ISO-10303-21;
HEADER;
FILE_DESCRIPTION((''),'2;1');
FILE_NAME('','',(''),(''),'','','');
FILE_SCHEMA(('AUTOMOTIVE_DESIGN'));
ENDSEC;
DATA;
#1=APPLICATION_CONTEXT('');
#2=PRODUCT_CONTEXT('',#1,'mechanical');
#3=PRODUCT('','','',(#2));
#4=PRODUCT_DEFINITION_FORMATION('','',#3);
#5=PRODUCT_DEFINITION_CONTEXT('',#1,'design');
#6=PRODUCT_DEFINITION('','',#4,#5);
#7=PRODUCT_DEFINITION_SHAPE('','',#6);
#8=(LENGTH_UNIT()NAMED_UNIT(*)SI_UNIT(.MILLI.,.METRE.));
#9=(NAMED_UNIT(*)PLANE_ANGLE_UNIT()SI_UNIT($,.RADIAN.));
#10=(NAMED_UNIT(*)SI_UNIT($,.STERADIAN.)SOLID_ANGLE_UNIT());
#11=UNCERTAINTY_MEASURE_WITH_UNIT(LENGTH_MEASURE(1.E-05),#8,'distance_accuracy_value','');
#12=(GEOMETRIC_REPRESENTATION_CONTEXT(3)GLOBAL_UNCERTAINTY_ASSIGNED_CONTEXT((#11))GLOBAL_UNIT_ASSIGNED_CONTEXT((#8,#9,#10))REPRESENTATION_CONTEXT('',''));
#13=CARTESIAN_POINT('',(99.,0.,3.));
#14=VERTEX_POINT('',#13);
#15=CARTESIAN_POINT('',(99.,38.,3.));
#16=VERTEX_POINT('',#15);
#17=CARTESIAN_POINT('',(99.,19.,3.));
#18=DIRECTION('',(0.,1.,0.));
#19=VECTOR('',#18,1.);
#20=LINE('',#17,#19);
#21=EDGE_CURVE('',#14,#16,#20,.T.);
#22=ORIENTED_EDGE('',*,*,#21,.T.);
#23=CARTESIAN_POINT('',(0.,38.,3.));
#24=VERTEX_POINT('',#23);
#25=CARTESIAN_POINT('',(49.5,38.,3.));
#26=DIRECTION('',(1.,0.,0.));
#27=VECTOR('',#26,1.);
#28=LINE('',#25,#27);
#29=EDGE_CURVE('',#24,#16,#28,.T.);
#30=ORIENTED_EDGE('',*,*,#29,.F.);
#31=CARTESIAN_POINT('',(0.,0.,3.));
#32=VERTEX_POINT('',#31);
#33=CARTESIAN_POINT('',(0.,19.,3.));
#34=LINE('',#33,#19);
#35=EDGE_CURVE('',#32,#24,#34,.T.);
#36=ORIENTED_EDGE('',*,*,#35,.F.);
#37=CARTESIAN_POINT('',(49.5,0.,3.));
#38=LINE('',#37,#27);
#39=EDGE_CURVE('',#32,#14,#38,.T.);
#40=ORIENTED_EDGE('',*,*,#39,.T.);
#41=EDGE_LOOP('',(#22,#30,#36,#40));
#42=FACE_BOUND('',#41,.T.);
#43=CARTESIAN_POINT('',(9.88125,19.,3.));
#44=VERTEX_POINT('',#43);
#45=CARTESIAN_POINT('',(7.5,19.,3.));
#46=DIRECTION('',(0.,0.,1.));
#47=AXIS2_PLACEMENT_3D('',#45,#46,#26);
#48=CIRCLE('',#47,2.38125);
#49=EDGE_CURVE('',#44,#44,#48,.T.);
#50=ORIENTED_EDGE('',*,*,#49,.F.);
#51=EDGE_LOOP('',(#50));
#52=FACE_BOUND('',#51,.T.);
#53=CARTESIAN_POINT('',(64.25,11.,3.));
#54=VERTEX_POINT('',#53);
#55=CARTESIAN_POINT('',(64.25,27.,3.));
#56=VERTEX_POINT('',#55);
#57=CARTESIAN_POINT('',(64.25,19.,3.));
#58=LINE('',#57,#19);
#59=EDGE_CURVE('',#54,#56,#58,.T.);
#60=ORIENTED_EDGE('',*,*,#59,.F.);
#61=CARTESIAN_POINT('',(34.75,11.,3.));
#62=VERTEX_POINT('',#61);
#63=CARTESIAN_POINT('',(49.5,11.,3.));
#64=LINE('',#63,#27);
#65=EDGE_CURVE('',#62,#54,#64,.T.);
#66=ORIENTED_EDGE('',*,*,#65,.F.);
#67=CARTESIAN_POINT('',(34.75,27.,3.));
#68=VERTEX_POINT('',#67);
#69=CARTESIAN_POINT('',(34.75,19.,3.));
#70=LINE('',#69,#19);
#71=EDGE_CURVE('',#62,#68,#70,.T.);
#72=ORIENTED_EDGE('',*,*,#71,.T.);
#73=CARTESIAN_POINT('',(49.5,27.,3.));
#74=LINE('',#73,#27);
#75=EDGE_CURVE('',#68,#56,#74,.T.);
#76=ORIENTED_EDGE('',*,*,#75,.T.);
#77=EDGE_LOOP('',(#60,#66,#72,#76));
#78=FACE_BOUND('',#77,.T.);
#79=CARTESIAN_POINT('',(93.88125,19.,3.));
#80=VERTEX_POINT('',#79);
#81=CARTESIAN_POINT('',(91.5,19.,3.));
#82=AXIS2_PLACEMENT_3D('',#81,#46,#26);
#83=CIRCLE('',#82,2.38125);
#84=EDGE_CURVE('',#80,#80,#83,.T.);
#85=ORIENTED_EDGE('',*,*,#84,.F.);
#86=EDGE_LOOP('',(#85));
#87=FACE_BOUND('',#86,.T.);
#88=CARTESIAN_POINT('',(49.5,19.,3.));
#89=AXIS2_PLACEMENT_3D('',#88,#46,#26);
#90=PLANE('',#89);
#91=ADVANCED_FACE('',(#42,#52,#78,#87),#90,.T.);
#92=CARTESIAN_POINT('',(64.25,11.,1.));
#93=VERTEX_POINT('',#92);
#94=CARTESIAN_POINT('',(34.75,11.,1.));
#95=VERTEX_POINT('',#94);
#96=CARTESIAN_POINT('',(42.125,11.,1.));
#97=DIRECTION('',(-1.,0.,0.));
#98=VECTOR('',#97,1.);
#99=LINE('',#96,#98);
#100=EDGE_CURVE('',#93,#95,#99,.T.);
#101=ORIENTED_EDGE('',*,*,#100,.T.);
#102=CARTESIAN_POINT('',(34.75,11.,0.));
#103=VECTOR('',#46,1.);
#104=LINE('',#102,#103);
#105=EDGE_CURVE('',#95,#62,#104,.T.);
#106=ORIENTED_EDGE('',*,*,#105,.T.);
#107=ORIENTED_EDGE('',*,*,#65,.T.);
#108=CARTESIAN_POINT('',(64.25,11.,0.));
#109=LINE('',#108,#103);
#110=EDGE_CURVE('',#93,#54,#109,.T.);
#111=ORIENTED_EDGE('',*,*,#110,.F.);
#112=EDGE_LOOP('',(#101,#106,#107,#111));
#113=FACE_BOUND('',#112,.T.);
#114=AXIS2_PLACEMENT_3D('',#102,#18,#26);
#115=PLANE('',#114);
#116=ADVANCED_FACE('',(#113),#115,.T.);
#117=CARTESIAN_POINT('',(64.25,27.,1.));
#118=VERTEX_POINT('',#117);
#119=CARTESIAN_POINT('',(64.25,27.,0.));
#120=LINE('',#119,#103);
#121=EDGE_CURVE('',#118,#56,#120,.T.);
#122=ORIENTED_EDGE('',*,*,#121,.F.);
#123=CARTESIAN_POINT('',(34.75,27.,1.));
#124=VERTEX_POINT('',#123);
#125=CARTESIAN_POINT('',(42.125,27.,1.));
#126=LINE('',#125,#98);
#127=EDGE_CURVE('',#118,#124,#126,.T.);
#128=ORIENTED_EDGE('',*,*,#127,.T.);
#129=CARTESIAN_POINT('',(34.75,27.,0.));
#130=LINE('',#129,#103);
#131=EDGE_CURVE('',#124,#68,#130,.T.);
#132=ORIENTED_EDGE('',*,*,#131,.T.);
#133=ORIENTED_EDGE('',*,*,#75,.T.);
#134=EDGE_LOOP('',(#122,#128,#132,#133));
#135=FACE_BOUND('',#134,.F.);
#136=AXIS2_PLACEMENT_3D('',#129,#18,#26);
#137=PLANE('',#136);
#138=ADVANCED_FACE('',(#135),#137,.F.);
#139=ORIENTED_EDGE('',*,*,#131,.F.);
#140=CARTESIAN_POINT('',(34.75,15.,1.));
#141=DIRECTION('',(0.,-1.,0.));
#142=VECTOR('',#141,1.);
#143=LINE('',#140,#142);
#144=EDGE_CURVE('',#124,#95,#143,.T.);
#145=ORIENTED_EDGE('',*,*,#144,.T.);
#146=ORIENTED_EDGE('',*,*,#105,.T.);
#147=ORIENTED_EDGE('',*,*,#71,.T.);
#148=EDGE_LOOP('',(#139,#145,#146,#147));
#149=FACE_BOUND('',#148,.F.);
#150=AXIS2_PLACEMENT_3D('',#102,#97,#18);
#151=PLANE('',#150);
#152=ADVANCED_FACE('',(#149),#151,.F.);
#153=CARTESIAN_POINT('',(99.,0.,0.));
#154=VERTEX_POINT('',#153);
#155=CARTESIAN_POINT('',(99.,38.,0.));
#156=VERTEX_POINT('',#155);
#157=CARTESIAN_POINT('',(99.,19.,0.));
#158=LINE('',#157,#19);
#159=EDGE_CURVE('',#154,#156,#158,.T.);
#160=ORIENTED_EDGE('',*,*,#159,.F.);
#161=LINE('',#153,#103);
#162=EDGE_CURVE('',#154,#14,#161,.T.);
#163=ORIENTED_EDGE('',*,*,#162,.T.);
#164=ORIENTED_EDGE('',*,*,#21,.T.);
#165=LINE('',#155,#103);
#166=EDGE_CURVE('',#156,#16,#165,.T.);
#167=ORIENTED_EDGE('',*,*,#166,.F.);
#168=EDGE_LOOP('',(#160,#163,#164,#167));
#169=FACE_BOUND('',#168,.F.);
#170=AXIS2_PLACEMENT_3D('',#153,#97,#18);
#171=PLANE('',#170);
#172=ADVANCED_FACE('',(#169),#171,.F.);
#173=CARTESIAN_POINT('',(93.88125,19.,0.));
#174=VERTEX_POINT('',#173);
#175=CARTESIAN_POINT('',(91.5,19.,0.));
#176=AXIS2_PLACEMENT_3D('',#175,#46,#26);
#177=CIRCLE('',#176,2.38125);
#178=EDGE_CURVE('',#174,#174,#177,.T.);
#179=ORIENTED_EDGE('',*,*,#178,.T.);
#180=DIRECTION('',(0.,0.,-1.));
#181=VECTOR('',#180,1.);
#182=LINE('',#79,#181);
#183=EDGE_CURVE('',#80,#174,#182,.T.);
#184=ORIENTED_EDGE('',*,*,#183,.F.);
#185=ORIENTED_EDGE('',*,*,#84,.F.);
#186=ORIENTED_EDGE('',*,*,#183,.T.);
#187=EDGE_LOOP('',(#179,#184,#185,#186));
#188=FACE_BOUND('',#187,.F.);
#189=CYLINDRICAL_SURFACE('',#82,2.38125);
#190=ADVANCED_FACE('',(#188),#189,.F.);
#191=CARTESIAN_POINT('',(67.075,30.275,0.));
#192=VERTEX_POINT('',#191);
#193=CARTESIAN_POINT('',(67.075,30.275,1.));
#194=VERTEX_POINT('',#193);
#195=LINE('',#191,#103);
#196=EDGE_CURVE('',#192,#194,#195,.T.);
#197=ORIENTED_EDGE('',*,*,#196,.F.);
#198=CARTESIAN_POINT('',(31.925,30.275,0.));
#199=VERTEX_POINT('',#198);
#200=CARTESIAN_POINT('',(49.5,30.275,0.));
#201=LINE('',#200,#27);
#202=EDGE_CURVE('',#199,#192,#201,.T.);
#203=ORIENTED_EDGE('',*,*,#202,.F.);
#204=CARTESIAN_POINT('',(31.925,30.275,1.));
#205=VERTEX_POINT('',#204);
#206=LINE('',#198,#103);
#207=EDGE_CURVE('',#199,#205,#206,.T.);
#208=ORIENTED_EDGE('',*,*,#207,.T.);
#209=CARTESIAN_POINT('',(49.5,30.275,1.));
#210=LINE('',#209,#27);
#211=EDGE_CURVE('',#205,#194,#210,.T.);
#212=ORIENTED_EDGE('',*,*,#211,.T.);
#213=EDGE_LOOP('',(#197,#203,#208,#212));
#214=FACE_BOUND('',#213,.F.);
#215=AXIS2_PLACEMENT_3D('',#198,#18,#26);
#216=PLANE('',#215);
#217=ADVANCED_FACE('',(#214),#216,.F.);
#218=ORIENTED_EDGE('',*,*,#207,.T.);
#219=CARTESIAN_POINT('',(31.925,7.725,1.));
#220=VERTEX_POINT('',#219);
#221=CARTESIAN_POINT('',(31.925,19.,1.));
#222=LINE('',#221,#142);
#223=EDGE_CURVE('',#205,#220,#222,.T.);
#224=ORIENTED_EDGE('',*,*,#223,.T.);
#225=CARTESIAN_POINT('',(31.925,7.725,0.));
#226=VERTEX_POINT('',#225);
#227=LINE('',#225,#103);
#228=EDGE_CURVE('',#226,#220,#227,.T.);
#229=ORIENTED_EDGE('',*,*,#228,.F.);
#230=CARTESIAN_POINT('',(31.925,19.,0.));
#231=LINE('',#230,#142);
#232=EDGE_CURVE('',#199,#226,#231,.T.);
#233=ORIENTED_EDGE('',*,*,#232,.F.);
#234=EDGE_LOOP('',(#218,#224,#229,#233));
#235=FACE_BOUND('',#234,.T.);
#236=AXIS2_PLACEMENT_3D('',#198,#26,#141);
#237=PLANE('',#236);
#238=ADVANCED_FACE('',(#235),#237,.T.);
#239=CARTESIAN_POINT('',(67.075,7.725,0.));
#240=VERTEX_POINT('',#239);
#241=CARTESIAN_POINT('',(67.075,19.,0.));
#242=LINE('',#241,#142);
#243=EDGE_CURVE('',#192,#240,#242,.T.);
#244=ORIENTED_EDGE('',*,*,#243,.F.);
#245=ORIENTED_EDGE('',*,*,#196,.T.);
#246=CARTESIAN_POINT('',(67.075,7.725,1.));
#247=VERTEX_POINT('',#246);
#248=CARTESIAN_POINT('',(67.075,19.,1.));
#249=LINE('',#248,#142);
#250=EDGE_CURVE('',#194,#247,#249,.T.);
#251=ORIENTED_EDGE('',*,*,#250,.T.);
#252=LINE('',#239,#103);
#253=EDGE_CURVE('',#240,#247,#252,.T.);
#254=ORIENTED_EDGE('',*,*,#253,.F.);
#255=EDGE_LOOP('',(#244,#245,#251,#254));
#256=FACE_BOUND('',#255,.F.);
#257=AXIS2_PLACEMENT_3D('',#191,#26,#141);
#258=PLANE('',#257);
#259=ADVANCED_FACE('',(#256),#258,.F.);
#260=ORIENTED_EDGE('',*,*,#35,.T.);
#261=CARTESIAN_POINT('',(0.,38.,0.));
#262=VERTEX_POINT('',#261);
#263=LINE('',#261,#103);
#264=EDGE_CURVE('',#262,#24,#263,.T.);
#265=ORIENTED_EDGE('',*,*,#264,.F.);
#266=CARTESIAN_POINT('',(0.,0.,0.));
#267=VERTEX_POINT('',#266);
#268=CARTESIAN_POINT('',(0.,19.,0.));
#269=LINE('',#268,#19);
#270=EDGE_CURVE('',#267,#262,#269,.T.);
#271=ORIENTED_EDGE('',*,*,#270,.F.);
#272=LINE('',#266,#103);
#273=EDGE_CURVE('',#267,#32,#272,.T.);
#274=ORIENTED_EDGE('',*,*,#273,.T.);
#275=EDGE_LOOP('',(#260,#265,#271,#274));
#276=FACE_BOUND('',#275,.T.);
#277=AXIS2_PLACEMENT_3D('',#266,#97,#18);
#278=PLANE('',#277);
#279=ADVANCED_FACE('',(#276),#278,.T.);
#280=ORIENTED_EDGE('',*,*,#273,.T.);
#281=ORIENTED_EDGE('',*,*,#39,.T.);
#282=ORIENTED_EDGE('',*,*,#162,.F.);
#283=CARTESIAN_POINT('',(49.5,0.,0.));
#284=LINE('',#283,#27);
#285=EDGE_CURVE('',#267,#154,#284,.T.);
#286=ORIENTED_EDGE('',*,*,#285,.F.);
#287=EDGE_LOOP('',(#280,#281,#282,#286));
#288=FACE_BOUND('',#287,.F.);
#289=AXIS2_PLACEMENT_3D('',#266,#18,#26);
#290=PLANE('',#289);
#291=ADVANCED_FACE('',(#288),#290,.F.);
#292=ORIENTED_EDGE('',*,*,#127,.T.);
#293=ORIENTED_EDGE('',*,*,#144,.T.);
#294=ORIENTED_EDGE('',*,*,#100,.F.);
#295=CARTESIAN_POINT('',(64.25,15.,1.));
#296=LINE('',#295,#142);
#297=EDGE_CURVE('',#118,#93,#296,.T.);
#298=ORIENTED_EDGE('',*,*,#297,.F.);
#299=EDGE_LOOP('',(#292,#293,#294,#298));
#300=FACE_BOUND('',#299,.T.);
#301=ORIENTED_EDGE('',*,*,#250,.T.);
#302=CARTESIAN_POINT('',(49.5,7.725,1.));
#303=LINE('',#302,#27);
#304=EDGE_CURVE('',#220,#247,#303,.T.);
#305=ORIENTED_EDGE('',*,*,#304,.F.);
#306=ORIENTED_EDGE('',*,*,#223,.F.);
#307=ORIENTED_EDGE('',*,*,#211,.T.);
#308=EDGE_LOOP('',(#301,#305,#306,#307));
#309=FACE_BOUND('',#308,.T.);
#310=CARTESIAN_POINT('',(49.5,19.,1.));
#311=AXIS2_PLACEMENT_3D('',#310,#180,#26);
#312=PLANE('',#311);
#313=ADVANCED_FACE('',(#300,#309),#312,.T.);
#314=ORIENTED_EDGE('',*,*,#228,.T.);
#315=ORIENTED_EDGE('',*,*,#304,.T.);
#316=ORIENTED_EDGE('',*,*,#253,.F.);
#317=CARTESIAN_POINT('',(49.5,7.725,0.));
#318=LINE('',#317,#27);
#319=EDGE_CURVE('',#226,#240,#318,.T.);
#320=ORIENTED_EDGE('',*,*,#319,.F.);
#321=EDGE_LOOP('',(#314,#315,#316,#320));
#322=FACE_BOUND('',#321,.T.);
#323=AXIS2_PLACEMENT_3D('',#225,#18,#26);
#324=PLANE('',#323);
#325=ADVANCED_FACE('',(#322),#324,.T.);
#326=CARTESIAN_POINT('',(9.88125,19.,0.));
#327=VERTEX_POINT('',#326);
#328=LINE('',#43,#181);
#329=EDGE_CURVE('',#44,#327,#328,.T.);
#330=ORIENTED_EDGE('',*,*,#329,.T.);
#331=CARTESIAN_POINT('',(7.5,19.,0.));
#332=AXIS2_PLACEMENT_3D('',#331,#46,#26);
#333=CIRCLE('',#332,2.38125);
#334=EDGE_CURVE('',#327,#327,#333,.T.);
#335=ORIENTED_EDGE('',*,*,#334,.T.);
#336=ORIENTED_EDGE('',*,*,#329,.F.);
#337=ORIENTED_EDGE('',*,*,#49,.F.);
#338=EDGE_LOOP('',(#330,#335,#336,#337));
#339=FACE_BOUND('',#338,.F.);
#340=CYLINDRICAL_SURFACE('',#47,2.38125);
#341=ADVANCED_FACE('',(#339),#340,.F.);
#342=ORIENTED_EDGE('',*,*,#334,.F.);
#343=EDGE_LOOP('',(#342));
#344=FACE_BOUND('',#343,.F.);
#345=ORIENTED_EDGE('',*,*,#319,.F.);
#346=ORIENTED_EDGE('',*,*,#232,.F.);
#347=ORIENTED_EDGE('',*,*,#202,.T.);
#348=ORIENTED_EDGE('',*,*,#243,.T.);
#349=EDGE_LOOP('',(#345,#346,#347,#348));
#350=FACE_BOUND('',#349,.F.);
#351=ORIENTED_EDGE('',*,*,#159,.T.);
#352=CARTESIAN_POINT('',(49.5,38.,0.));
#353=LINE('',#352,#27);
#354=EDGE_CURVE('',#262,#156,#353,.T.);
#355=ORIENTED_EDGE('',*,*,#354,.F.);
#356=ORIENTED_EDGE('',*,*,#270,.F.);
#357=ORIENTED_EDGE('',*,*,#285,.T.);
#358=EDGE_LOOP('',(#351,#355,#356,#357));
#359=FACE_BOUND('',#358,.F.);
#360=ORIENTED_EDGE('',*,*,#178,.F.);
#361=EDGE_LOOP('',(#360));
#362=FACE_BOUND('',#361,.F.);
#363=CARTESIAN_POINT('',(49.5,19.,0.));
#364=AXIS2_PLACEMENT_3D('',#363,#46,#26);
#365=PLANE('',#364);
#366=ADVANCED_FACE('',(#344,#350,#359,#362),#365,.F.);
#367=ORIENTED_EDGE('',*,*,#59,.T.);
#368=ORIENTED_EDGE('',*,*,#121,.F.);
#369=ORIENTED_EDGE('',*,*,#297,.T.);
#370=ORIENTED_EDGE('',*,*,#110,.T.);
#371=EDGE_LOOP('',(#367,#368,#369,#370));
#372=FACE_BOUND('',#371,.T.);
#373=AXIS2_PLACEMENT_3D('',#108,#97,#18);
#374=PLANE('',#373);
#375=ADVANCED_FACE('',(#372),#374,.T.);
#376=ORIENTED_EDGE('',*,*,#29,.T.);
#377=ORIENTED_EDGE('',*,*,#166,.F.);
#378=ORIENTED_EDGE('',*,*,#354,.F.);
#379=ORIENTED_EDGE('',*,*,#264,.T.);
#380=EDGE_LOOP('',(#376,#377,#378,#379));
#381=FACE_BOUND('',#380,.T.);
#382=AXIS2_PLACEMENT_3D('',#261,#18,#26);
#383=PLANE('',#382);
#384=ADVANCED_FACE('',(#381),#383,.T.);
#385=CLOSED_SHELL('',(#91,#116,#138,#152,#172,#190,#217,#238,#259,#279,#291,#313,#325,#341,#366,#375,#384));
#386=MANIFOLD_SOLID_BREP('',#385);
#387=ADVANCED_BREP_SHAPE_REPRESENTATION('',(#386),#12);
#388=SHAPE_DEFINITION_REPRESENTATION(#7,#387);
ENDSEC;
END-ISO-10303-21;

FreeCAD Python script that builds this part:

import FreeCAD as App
import Part
import Sketcher

V = App.Vector


def add_polygon(sketch, points):
    """Adds a closed chain of lines whose ends are joined by coincident constraints."""
    first, n = sketch.GeometryCount, len(points)
    for a, b in zip(points, points[1:] + points[:1]):
        sketch.addGeometry(Part.LineSegment(App.Vector(*a, 0), App.Vector(*b, 0)), False)
    for i in range(n):
        sketch.addConstraint(Sketcher.Constraint("Coincident", first + i, 2, first + (i + 1) % n, 1))

doc = App.newDocument("Part")
body = doc.addObject("PartDesign::Body", "Body")

# Sketch on XY plane
sketch1 = body.newObject("Sketcher::SketchObject", "Sketch")
sketch1.AttachmentSupport = (doc.getObject("XY_Plane"), [""])
sketch1.MapMode = "FlatFace"
add_polygon(sketch1, [(0, 38), (0, 0), (99, 0), (99, 38)])  # lines 0-3
add_polygon(sketch1, [(64, 11), (35, 11), (35, 27), (64, 27)])  # lines 4-7
sketch1.addConstraint(Sketcher.Constraint("Vertical", 0))
sketch1.addConstraint(Sketcher.Constraint("Horizontal", 1))
sketch1.addConstraint(Sketcher.Constraint("Vertical", 2))
sketch1.addConstraint(Sketcher.Constraint("Horizontal", 3))
sketch1.addConstraint(Sketcher.Constraint("Horizontal", 4))
sketch1.addConstraint(Sketcher.Constraint("Vertical", 5))
sketch1.addConstraint(Sketcher.Constraint("Horizontal", 6))
sketch1.addConstraint(Sketcher.Constraint("Vertical", 7))
sketch1.addConstraint(Sketcher.Constraint("Coincident", 0, 2, -1, 1))
sketch1.addConstraint(Sketcher.Constraint("DistanceX", 1, 1, 1, 2, 99.0))
sketch1.addConstraint(Sketcher.Constraint("DistanceY", 0, 2, 0, 1, 38.0))
sketch1.addConstraint(Sketcher.Constraint("DistanceY", 5, 1, 5, 2, 16.0))
sketch1.addConstraint(Sketcher.Constraint("DistanceX", 4, 2, 4, 1, 29.5))
sketch1.addConstraint(Sketcher.Constraint("DistanceY", -1, 1, 4, 2, 11.0))
sketch1.addConstraint(Sketcher.Constraint("DistanceX", -1, 1, 4, 2, 34.75))
pad1 = body.newObject("PartDesign::Pad", "Pad")
pad1.Profile = sketch1
pad1.Length = 3

# Sketch on XY plane
sketch2 = body.newObject("Sketcher::SketchObject", "Sketch001")
sketch2.AttachmentSupport = (doc.getObject("XY_Plane"), [""])
sketch2.MapMode = "FlatFace"
sketch2.AttachmentOffset = App.Placement(V(0, 0, 3), App.Rotation())
sketch2.addGeometry(Part.Circle(V(7.5, 19, 0), V(0, 0, 1), 2.4), False)
sketch2.addGeometry(Part.Circle(V(91.5, 19, 0), V(0, 0, 1), 2.4), False)
sketch2.addConstraint(Sketcher.Constraint("Equal", 0, 1))
sketch2.addConstraint(Sketcher.Constraint("Horizontal", 0, 3, 1, 3))
sketch2.addConstraint(Sketcher.Constraint("DistanceY", -1, 1, 0, 3, 19.0))
sketch2.addConstraint(Sketcher.Constraint("DistanceX", 0, 3, 1, 3, 84.0))
sketch2.addConstraint(Sketcher.Constraint("Diameter", 0, 4.7625))
sketch2.addConstraint(Sketcher.Constraint("DistanceX", -1, 1, 0, 3, 7.5))
pocket1 = body.newObject("PartDesign::Pocket", "Pocket")
pocket1.Profile = sketch2
pocket1.Type = "ThroughAll"

# Sketch on XY plane
sketch3 = body.newObject("Sketcher::SketchObject", "Sketch002")
sketch3.AttachmentSupport = (doc.getObject("XY_Plane"), [""])
sketch3.MapMode = "FlatFace"
add_polygon(sketch3, [(32, 8), (32, 30), (67, 30), (67, 8)])  # lines 0-3
sketch3.addConstraint(Sketcher.Constraint("Vertical", 0))
sketch3.addConstraint(Sketcher.Constraint("Horizontal", 1))
sketch3.addConstraint(Sketcher.Constraint("Vertical", 2))
sketch3.addConstraint(Sketcher.Constraint("Horizontal", 3))
sketch3.addConstraint(Sketcher.Constraint("DistanceX", 1, 1, 1, 2, 35.15))
sketch3.addConstraint(Sketcher.Constraint("DistanceY", 0, 1, 0, 2, 22.55))
sketch3.addConstraint(Sketcher.Constraint("DistanceX", -1, 1, 0, 2, 31.925))
sketch3.addConstraint(Sketcher.Constraint("DistanceY", -1, 1, 0, 2, 30.275))
pocket2 = body.newObject("PartDesign::Pocket", "Pocket001")
pocket2.Profile = sketch3
pocket2.Length = 1
pocket2.Reversed = True

doc.recompute()
